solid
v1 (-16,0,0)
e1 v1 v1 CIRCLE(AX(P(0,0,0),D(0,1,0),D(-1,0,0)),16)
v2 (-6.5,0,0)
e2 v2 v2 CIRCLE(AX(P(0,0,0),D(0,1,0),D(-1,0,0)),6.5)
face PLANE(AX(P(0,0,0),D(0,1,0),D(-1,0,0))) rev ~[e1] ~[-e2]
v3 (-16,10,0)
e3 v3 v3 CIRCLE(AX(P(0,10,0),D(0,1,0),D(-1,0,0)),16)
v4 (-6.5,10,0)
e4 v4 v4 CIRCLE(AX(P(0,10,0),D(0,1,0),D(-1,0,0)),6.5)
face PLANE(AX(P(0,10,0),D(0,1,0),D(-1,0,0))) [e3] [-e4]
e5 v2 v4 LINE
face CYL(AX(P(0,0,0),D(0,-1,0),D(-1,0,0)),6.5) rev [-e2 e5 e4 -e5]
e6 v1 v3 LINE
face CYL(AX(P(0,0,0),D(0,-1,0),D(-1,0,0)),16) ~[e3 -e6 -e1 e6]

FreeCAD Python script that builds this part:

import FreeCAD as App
import Part
import Sketcher
Q = App.Units.Quantity

doc = App.newDocument("Part")
body = doc.addObject("PartDesign::Body", "Body")

# Sketch on XZ plane
sketch1 = body.newObject("Sketcher::SketchObject", "Sketch")
sketch1.AttachmentSupport = (doc.getObject("XZ_Plane"), [""])
sketch1.MapMode = "FlatFace"
sketch1.addGeometry([
    Part.Circle(App.Vector(0, 0, 0), App.Vector(0, 0, 1), 16),
    Part.Circle(App.Vector(0, 0, 0), App.Vector(0, 0, 1), 6),
], False)
sketch1.addConstraint([
    Sketcher.Constraint("Coincident", 0, 3, -1, 1),
    Sketcher.Constraint("Coincident", 1, 3, -1, 1),
    Sketcher.Constraint("Diameter", 0, Q("32 mm")),
    Sketcher.Constraint("Diameter", 1, Q("13 mm")),
])
pad1 = body.newObject("PartDesign::Pad", "Pad")
pad1.Profile = sketch1
pad1.Length = 10
pad1.Reversed = True

doc.recompute()
